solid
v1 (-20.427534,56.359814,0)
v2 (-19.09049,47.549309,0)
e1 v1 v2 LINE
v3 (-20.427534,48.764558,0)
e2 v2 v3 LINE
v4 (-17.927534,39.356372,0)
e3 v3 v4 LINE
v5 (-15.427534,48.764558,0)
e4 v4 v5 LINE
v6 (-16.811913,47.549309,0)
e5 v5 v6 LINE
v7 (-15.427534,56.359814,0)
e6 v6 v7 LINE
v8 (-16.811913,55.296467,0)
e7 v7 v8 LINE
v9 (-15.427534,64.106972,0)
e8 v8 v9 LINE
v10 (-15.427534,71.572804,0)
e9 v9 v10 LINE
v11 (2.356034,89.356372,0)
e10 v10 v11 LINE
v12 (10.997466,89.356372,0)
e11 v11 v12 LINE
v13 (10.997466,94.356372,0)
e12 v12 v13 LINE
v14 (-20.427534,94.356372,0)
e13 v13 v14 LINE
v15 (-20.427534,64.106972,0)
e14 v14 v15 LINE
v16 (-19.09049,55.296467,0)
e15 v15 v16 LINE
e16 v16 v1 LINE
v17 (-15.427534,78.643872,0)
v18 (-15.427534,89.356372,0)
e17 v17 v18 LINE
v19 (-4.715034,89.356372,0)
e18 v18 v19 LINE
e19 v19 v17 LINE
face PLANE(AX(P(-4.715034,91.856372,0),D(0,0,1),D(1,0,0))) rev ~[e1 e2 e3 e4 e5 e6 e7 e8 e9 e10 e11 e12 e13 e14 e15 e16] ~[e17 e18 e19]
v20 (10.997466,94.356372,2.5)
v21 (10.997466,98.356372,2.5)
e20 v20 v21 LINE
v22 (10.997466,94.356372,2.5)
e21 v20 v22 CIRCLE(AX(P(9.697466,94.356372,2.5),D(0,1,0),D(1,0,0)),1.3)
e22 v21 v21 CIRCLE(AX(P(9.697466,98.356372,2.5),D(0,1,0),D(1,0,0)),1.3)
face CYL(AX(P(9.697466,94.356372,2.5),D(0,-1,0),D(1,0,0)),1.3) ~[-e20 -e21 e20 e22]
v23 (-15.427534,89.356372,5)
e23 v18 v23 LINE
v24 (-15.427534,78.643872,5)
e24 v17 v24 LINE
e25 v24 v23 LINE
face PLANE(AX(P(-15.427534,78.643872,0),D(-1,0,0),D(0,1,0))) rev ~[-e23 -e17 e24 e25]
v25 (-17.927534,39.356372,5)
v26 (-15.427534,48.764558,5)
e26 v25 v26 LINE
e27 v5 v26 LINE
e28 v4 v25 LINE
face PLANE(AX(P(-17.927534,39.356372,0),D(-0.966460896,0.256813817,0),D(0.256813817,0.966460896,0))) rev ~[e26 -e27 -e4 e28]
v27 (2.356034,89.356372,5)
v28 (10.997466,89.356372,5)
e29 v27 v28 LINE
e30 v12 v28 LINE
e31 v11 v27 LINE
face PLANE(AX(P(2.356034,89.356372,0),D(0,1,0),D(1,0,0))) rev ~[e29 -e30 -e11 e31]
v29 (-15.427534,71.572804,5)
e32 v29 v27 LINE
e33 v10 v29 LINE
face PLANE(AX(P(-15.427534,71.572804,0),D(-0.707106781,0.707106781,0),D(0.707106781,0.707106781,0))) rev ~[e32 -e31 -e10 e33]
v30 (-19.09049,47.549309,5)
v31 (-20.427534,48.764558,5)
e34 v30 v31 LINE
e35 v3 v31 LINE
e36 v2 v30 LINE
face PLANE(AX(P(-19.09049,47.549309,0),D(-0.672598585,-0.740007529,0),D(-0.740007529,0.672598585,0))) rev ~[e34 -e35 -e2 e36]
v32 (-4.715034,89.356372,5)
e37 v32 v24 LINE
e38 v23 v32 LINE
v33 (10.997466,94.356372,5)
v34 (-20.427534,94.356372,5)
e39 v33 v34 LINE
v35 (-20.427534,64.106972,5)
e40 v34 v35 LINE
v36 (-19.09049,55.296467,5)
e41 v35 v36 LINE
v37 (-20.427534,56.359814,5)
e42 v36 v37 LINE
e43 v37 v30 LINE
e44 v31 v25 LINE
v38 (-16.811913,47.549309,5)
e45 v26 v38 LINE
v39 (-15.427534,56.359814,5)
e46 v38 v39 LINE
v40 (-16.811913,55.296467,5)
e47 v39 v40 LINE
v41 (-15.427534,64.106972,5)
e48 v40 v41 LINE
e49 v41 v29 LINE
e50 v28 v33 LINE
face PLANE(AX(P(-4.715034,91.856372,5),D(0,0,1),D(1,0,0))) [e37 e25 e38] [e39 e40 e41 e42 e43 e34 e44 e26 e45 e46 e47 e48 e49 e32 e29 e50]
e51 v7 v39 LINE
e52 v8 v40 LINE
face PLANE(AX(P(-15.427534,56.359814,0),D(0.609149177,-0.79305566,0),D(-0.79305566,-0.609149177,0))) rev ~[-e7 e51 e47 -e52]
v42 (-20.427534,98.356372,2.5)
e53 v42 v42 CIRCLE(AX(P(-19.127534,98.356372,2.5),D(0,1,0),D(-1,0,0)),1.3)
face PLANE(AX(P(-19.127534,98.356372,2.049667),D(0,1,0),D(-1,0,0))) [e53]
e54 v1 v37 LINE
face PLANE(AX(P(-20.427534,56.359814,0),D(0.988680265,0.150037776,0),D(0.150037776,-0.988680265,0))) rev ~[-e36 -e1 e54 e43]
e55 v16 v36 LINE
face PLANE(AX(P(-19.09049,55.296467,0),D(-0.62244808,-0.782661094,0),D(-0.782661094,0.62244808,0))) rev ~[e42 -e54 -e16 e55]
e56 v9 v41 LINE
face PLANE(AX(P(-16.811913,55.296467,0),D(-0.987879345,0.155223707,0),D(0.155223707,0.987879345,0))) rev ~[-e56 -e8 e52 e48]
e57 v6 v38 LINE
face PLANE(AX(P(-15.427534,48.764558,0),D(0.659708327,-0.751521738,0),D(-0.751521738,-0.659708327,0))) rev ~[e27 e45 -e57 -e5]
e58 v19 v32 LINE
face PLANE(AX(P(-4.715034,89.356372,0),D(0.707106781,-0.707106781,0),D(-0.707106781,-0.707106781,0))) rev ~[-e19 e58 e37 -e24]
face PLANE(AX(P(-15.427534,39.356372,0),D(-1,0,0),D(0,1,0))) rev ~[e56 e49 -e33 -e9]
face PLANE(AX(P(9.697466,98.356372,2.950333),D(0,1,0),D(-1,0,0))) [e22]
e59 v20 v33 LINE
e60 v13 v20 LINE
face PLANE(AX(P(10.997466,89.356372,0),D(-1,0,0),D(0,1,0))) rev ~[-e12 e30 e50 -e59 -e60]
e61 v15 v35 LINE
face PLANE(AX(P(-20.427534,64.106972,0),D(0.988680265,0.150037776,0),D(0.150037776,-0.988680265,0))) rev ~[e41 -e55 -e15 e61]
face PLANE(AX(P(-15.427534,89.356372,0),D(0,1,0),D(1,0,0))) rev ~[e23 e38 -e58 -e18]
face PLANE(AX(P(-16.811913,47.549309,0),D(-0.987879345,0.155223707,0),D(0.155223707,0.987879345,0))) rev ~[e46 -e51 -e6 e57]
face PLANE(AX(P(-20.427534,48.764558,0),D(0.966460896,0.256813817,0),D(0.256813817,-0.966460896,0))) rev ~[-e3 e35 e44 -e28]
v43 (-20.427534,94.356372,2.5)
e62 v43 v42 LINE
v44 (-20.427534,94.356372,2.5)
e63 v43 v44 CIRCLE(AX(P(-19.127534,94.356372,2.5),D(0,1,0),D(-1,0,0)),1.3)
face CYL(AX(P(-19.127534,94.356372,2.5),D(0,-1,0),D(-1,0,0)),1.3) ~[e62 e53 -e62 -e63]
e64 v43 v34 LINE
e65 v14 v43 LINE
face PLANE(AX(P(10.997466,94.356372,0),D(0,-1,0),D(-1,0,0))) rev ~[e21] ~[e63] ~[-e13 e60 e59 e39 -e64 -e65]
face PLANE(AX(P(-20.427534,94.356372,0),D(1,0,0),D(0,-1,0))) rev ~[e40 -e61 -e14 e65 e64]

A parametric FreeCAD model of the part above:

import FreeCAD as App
import Part
import Sketcher

V = App.Vector


def add_polygon(sketch, points):
    """Adds a closed chain of lines whose ends are joined by coincident constraints."""
    first, n = sketch.GeometryCount, len(points)
    for a, b in zip(points, points[1:] + points[:1]):
        sketch.addGeometry(Part.LineSegment(App.Vector(*a, 0), App.Vector(*b, 0)), False)
    for i in range(n):
        sketch.addConstraint(Sketcher.Constraint("Coincident", first + i, 2, first + (i + 1) % n, 1))

doc = App.newDocument("Part")
params = doc.addObject("Spreadsheet::Sheet", "Params")
for row, (alias, value) in enumerate([
    ("sketch1_width", "5 mm"),
    ("sketch1_height", "55 mm"),
    ("pad1_length", "5 mm"),
    ("sketch2_diameter", "2.6 mm"),
    ("pad2_length", "4 mm"),
    ("sketch3_width", "2.5 mm"),
], start=1):
    params.set(f"A{row}", alias)
    params.set(f"B{row}", "=" + value)
    params.setAlias(f"B{row}", alias)

body = doc.addObject("PartDesign::Body", "Body")

sketch1 = doc.addObject("Sketcher::SketchObject", "Sketch")
body.addObject(sketch1)
sketch1.AttachmentSupport = (doc.XY_Plane, [""])
sketch1.MapMode = "FlatFace"
add_polygon(sketch1, [(-20.4, 94.4), (-20.4, 39.4), (-15.4, 39.4), (-15.4, 71.6), (2.4, 89.4), (11, 89.4), (11, 94.4)])
add_polygon(sketch1, [(-15.4, 78.6), (-15.4, 89.4), (-4.7, 89.4)])
sketch1.addConstraint([
    Sketcher.Constraint("Vertical", 0),
    Sketcher.Constraint("Horizontal", 1),
    Sketcher.Constraint("Vertical", 2),
    Sketcher.Constraint("Horizontal", 4),
    Sketcher.Constraint("Vertical", 5),
    Sketcher.Constraint("Horizontal", 6),
    Sketcher.Constraint("Vertical", 7),
    Sketcher.Constraint("Horizontal", 8),
    Sketcher.Constraint("Parallel", 3, 9),
    Sketcher.Constraint("Horizontal", 4, 2, 7, 2),
    Sketcher.Constraint("Vertical", 2, 2, 7, 2),
    Sketcher.Constraint("Equal", 1, 5),
    Sketcher.Constraint("Equal", 8, 7),
    Sketcher.Constraint("DistanceX", 1, 1, 1, 2, 5.0),
    Sketcher.Constraint("DistanceY", 0, 2, 0, 1, 55.0),
    Sketcher.Constraint("DistanceX", 6, 2, 6, 1, 31.425),
    Sketcher.Constraint("DistanceX", 8, 1, 8, 2, 10.7125),
    Sketcher.Constraint("DistanceX", 4, 1, 4, 2, 8.641432),
    Sketcher.Constraint("DistanceY", -1, 1, 0, 2, 39.356372),
    Sketcher.Constraint("DistanceX", 0, 2, -1, 1, 20.427534),
])
sketch1.setExpression("Constraints[23]", "Params.sketch1_width")
sketch1.setExpression("Constraints[24]", "Params.sketch1_height")
pad1 = doc.addObject("PartDesign::Pad", "Pad")
body.addObject(pad1)
pad1.Profile = sketch1
pad1.setExpression("Length", "Params.pad1_length")

sketch2 = doc.addObject("Sketcher::SketchObject", "Sketch001")
body.addObject(sketch2)
sketch2.AttachmentSupport = (doc.XZ_Plane, [""])
sketch2.MapMode = "FlatFace"
sketch2.AttachmentOffset = App.Placement(V(0, 0, -94.356372), App.Rotation())
sketch2.addGeometry([
    Part.Circle(V(9.7, 2.5, 0), V(0, 0, 1), 1.3),
    Part.Circle(V(-19.1, 2.5, 0), V(0, 0, 1), 1.3),
], False)
sketch2.addConstraint([
    Sketcher.Constraint("Equal", 0, 1),
    Sketcher.Constraint("Horizontal", 0, 3, 1, 3),
    Sketcher.Constraint("Diameter", 0, 2.6),
    Sketcher.Constraint("DistanceY", -1, 1, 0, 3, 2.5),
    Sketcher.Constraint("DistanceX", 1, 3, 0, 3, 28.825),
    Sketcher.Constraint("DistanceX", -1, 1, 0, 3, 9.697466),
])
sketch2.setExpression("Constraints[2]", "Params.sketch2_diameter")
pad2 = doc.addObject("PartDesign::Pad", "Pad001")
body.addObject(pad2)
pad2.Profile = sketch2
pad2.setExpression("Length", "Params.pad2_length")
pad2.Reversed = True

sketch3 = doc.addObject("Sketcher::SketchObject", "Sketch002")
body.addObject(sketch3)
sketch3.AttachmentSupport = (doc.XY_Plane, [""])
sketch3.MapMode = "FlatFace"
add_polygon(sketch3, [(-15.4, 39.4), (-17.9, 39.4), (-15.4, 48.8)])
add_polygon(sketch3, [(-20.4, 48.8), (-17.9, 39.4), (-20.4, 39.4)])
add_polygon(sketch3, [(-19.1, 47.5), (-20.4, 48.8), (-20.4, 56.4)])
add_polygon(sketch3, [(-15.4, 56.4), (-15.4, 48.8), (-16.8, 47.5)])
add_polygon(sketch3, [(-15.4, 64.1), (-15.4, 56.4), (-16.8, 55.3)])
add_polygon(sketch3, [(-19.1, 55.3), (-20.4, 56.4), (-20.4, 64.1)])
sketch3.addConstraint([
    Sketcher.Constraint("Horizontal", 0),
    Sketcher.Constraint("Vertical", 2),
    Sketcher.Constraint("Horizontal", 4),
    Sketcher.Constraint("Vertical", 5),
    Sketcher.Constraint("Vertical", 7),
    Sketcher.Constraint("Vertical", 9),
    Sketcher.Constraint("Vertical", 12),
    Sketcher.Constraint("Vertical", 16),
    Sketcher.Constraint("Coincident", 3, 2, 0, 2),
    Sketcher.Constraint("Coincident", 6, 2, 5, 2),
    Sketcher.Constraint("Coincident", 9, 2, 1, 2),
    Sketcher.Constraint("Coincident", 12, 2, 11, 2),
    Sketcher.Constraint("Coincident", 15, 2, 7, 2),
    Sketcher.Constraint("Parallel", 11, 14),
    Sketcher.Constraint("Parallel", 8, 17),
    Sketcher.Constraint("Horizontal", 1, 2, 5, 2),
    Sketcher.Constraint("Horizontal", 8, 2, 10, 2),
    Sketcher.Constraint("Horizontal", 7, 2, 11, 2),
    Sketcher.Constraint("Horizontal", 14, 2, 16, 2),
    Sketcher.Constraint("Horizontal", 13, 2, 17, 2),
    Sketcher.Constraint("Vertical", 10, 2, 13, 2),
    Sketcher.Constraint("Equal", 0, 4),
    Sketcher.Constraint("DistanceX", 0, 2, 0, 1, 2.5),
    Sketcher.Constraint("Distance", 10, 1.842101),
    Sketcher.Constraint("DistanceY", 12, 2, 12, 1, 7.747158),
    Sketcher.Constraint("Distance", 1, 9.734679),
    Sketcher.Constraint("Distance", 8, 8.91138),
    Sketcher.Constraint("Distance", 15, 1.70833),
    Sketcher.Constraint("DistanceY", 7, 1, 7, 2, 7.595256),
    Sketcher.Constraint("DistanceY", -1, 1, 0, 2, 39.356372),
    Sketcher.Constraint("DistanceX", 8, 2, -1, 1, 19.09049),
])
sketch3.setExpression("Constraints[40]", "Params.sketch3_width")
pocket1 = doc.addObject("PartDesign::Pocket", "Pocket")
body.addObject(pocket1)
pocket1.Profile = sketch3
pocket1.Type = "ThroughAll"
pocket1.Reversed = True

doc.recompute()
